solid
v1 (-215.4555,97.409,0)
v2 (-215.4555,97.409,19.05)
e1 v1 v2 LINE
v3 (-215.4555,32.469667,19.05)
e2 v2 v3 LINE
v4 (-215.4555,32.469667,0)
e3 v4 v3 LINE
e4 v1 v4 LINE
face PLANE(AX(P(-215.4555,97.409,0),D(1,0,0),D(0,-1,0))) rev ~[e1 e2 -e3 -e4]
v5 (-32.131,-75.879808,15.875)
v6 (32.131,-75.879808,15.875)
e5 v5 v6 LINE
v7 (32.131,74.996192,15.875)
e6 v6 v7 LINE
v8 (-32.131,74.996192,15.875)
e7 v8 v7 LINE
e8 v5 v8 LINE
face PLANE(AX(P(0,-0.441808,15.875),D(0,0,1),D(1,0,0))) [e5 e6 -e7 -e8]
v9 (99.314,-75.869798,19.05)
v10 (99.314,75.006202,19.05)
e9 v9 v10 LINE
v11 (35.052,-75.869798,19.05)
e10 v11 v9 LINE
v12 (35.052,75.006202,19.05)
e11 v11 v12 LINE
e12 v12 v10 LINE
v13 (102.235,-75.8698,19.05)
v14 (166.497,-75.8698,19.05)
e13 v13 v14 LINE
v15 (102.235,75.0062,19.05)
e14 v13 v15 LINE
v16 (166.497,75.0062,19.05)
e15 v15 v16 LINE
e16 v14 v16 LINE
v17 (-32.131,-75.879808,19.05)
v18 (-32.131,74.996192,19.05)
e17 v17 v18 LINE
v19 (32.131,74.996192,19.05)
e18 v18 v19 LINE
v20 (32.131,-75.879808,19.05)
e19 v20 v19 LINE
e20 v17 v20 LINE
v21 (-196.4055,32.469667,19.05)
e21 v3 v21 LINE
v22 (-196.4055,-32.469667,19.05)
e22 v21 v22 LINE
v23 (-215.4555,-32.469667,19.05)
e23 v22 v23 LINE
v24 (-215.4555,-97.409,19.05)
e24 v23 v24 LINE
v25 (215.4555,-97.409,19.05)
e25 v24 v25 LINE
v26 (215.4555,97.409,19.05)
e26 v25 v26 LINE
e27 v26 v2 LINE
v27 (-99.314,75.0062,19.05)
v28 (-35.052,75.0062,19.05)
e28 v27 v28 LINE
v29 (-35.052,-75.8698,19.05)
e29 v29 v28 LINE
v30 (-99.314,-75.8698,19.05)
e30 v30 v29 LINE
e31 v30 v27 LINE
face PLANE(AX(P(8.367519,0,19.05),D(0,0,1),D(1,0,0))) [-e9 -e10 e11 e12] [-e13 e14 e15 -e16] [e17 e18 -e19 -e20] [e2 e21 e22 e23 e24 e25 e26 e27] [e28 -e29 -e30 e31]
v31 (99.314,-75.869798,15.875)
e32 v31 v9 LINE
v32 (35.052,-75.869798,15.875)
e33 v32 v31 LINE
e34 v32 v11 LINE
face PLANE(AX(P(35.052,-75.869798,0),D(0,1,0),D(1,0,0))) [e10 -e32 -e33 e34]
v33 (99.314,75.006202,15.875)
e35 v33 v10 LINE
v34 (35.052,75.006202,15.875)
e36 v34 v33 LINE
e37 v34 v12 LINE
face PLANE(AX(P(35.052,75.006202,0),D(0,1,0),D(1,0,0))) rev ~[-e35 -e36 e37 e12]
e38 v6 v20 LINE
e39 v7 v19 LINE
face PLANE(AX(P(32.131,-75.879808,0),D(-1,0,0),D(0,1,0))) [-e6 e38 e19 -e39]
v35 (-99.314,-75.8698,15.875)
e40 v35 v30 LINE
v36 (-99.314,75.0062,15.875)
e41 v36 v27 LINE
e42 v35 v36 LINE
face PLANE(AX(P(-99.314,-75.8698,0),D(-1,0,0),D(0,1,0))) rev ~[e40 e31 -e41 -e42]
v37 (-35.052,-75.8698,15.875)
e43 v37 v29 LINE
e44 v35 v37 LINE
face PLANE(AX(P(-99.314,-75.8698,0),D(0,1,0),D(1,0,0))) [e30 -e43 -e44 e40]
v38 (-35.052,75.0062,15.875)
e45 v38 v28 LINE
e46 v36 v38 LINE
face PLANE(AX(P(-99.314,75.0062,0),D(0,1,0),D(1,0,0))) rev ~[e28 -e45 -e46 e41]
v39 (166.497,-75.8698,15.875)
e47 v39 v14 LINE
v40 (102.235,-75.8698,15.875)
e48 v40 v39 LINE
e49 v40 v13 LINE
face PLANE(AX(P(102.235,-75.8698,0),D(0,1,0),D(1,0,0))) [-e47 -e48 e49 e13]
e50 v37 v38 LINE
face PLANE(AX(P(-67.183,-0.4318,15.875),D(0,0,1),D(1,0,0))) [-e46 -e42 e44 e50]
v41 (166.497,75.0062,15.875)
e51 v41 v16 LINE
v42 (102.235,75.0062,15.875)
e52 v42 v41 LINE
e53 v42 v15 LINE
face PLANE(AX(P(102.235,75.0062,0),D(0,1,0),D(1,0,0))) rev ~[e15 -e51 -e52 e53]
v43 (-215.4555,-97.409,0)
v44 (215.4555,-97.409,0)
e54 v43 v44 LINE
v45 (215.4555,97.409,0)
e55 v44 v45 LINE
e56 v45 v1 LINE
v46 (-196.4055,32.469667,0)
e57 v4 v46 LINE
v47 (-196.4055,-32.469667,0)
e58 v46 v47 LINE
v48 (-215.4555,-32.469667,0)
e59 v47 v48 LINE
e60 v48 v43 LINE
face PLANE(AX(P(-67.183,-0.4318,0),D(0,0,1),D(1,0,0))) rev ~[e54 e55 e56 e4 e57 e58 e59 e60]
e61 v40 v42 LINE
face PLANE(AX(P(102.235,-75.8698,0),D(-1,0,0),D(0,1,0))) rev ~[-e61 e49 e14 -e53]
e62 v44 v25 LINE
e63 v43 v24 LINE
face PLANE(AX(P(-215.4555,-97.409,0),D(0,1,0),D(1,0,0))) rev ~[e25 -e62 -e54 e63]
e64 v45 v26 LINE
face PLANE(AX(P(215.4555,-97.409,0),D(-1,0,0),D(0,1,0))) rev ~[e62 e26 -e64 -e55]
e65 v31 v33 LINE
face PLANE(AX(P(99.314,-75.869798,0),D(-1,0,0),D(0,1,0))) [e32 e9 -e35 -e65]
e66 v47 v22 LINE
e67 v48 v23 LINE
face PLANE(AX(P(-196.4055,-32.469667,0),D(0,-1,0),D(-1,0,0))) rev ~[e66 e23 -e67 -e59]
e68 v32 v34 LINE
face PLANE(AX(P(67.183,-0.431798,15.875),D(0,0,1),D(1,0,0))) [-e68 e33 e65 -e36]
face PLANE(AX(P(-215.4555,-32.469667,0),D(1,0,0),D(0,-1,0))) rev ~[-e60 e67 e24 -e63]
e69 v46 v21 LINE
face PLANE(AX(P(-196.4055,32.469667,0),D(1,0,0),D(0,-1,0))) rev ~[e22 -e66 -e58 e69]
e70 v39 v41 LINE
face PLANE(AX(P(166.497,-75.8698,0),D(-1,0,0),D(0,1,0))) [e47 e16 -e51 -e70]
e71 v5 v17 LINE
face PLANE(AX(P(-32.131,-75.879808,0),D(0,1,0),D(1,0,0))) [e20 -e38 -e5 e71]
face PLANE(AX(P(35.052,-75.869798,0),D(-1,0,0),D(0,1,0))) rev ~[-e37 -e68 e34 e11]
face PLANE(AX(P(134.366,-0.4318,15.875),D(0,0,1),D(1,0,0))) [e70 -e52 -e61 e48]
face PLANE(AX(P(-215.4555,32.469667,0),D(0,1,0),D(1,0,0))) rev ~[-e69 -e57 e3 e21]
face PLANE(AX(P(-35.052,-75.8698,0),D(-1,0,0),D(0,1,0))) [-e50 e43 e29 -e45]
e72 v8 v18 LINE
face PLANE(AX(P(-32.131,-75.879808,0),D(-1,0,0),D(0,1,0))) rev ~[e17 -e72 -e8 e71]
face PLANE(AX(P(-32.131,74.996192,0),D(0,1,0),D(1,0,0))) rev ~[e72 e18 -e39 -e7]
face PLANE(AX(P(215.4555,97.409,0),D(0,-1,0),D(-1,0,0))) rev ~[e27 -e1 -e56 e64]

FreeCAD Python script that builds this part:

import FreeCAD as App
import Part
import Sketcher

V = App.Vector
Q = App.Units.Quantity

doc = App.newDocument("Part")
body = doc.addObject("PartDesign::Body", "Body")

sketch1 = doc.addObject("Sketcher::SketchObject", "Sketch")
body.addObject(sketch1)
sketch1.AttachmentSupport = (doc.XY_Plane, [""])
sketch1.MapMode = "FlatFace"
sketch1.addGeometry(Part.LineSegment(V(-215.4555, -97.409, 0), V(215.4555, -97.409, 0)), False)
sketch1.addGeometry(Part.LineSegment(V(215.4555, -97.409, 0), V(215.4555, 97.409, 0)), False)
sketch1.addGeometry(Part.LineSegment(V(215.4555, 97.409, 0), V(-215.4555, 97.409, 0)), False)
sketch1.addGeometry(Part.LineSegment(V(-215.4555, 97.409, 0), V(-215.4555, 32.469667, 0)), False)
sketch1.addGeometry(Part.LineSegment(V(-215.4555, 32.469667, 0), V(-196.4055, 32.469667, 0)), False)
sketch1.addGeometry(Part.LineSegment(V(-196.4055, 32.469667, 0), V(-196.4055, -32.469667, 0)), False)
sketch1.addGeometry(Part.LineSegment(V(-196.4055, -32.469667, 0), V(-215.4555, -32.469667, 0)), False)
sketch1.addGeometry(Part.LineSegment(V(-215.4555, -32.469667, 0), V(-215.4555, -97.409, 0)), False)
sketch1.addGeometry(Part.LineSegment(V(32.131, -75.879808, 0), V(-32.131, -75.879808, 0)), False)
sketch1.addGeometry(Part.LineSegment(V(-32.131, -75.879808, 0), V(-32.131, 74.996192, 0)), False)
sketch1.addGeometry(Part.LineSegment(V(-32.131, 74.996192, 0), V(32.131, 74.996192, 0)), False)
sketch1.addGeometry(Part.LineSegment(V(32.131, 74.996192, 0), V(32.131, -75.879808, 0)), False)
sketch1.addGeometry(Part.LineSegment(V(-35.052, -75.8698, 0), V(-99.314, -75.8698, 0)), False)
sketch1.addGeometry(Part.LineSegment(V(-99.314, -75.8698, 0), V(-99.314, 75.0062, 0)), False)
sketch1.addGeometry(Part.LineSegment(V(-99.314, 75.0062, 0), V(-35.052, 75.0062, 0)), False)
sketch1.addGeometry(Part.LineSegment(V(-35.052, 75.0062, 0), V(-35.052, -75.8698, 0)), False)
sketch1.addGeometry(Part.LineSegment(V(99.314, -75.869798, 0), V(35.052, -75.869798, 0)), False)
sketch1.addGeometry(Part.LineSegment(V(35.052, -75.869798, 0), V(35.052, 75.006202, 0)), False)
sketch1.addGeometry(Part.LineSegment(V(35.052, 75.006202, 0), V(99.314, 75.006202, 0)), False)
sketch1.addGeometry(Part.LineSegment(V(99.314, 75.006202, 0), V(99.314, -75.869798, 0)), False)
sketch1.addGeometry(Part.LineSegment(V(166.497, -75.8698, 0), V(102.235, -75.8698, 0)), False)
sketch1.addGeometry(Part.LineSegment(V(102.235, -75.8698, 0), V(102.235, 75.0062, 0)), False)
sketch1.addGeometry(Part.LineSegment(V(102.235, 75.0062, 0), V(166.497, 75.0062, 0)), False)
sketch1.addGeometry(Part.LineSegment(V(166.497, 75.0062, 0), V(166.497, -75.8698, 0)), False)
sketch1.addConstraint(Sketcher.Constraint("Coincident", 0, 2, 1, 1))
sketch1.addConstraint(Sketcher.Constraint("Coincident", 1, 2, 2, 1))
sketch1.addConstraint(Sketcher.Constraint("Coincident", 2, 2, 3, 1))
sketch1.addConstraint(Sketcher.Constraint("Coincident", 3, 2, 4, 1))
sketch1.addConstraint(Sketcher.Constraint("Coincident", 4, 2, 5, 1))
sketch1.addConstraint(Sketcher.Constraint("Coincident", 5, 2, 6, 1))
sketch1.addConstraint(Sketcher.Constraint("Coincident", 6, 2, 7, 1))
sketch1.addConstraint(Sketcher.Constraint("Coincident", 7, 2, 0, 1))
sketch1.addConstraint(Sketcher.Constraint("Coincident", 8, 2, 9, 1))
sketch1.addConstraint(Sketcher.Constraint("Coincident", 9, 2, 10, 1))
sketch1.addConstraint(Sketcher.Constraint("Coincident", 10, 2, 11, 1))
sketch1.addConstraint(Sketcher.Constraint("Coincident", 11, 2, 8, 1))
sketch1.addConstraint(Sketcher.Constraint("Coincident", 12, 2, 13, 1))
sketch1.addConstraint(Sketcher.Constraint("Coincident", 13, 2, 14, 1))
sketch1.addConstraint(Sketcher.Constraint("Coincident", 14, 2, 15, 1))
sketch1.addConstraint(Sketcher.Constraint("Coincident", 15, 2, 12, 1))
sketch1.addConstraint(Sketcher.Constraint("Coincident", 16, 2, 17, 1))
sketch1.addConstraint(Sketcher.Constraint("Coincident", 17, 2, 18, 1))
sketch1.addConstraint(Sketcher.Constraint("Coincident", 18, 2, 19, 1))
sketch1.addConstraint(Sketcher.Constraint("Coincident", 19, 2, 16, 1))
sketch1.addConstraint(Sketcher.Constraint("Coincident", 20, 2, 21, 1))
sketch1.addConstraint(Sketcher.Constraint("Coincident", 21, 2, 22, 1))
sketch1.addConstraint(Sketcher.Constraint("Coincident", 22, 2, 23, 1))
sketch1.addConstraint(Sketcher.Constraint("Coincident", 23, 2, 20, 1))
sketch1.addConstraint(Sketcher.Constraint("Horizontal", 0))
sketch1.addConstraint(Sketcher.Constraint("Vertical", 1))
sketch1.addConstraint(Sketcher.Constraint("Horizontal", 2))
sketch1.addConstraint(Sketcher.Constraint("Vertical", 3))
sketch1.addConstraint(Sketcher.Constraint("Horizontal", 4))
sketch1.addConstraint(Sketcher.Constraint("Vertical", 5))
sketch1.addConstraint(Sketcher.Constraint("Horizontal", 6))
sketch1.addConstraint(Sketcher.Constraint("Vertical", 7))
sketch1.addConstraint(Sketcher.Constraint("Horizontal", 8))
sketch1.addConstraint(Sketcher.Constraint("Vertical", 9))
sketch1.addConstraint(Sketcher.Constraint("Horizontal", 10))
sketch1.addConstraint(Sketcher.Constraint("Vertical", 11))
sketch1.addConstraint(Sketcher.Constraint("Horizontal", 12))
sketch1.addConstraint(Sketcher.Constraint("Vertical", 13))
sketch1.addConstraint(Sketcher.Constraint("Horizontal", 14))
sketch1.addConstraint(Sketcher.Constraint("Vertical", 15))
sketch1.addConstraint(Sketcher.Constraint("Horizontal", 16))
sketch1.addConstraint(Sketcher.Constraint("Vertical", 17))
sketch1.addConstraint(Sketcher.Constraint("Horizontal", 18))
sketch1.addConstraint(Sketcher.Constraint("Vertical", 19))
sketch1.addConstraint(Sketcher.Constraint("Horizontal", 20))
sketch1.addConstraint(Sketcher.Constraint("Vertical", 21))
sketch1.addConstraint(Sketcher.Constraint("Horizontal", 22))
sketch1.addConstraint(Sketcher.Constraint("Vertical", 23))
sketch1.addConstraint(Sketcher.Constraint("Symmetric", 0, 2, 2, 2, -1, 1))
sketch1.addConstraint(Sketcher.Constraint("Symmetric", 15, 2, 16, 2, -2))
sketch1.addConstraint(Sketcher.Constraint("Symmetric", 13, 2, 18, 2, -2))
sketch1.addConstraint(Sketcher.Constraint("Symmetric", 3, 2, 6, 2, -1))
sketch1.addConstraint(Sketcher.Constraint("Horizontal", 19, 2, 20, 2))
sketch1.addConstraint(Sketcher.Constraint("Horizontal", 18, 2, 21, 2))
sketch1.addConstraint(Sketcher.Constraint("Equal", 10, 12))
sketch1.addConstraint(Sketcher.Constraint("Equal", 18, 20))
sketch1.addConstraint(Sketcher.Constraint("Equal", 3, 5))
sketch1.addConstraint(Sketcher.Constraint("Equal", 11, 13))
sketch1.addConstraint(Sketcher.Constraint("DistanceX", 4, 1, 4, 2, Q("0.75 in")))
sketch1.addConstraint(Sketcher.Constraint("DistanceX", 8, 2, 8, 1, Q("2.53 in")))
sketch1.addConstraint(Sketcher.Constraint("DistanceY", 1, 1, 1, 2, Q("7.67 in")))
sketch1.addConstraint(Sketcher.Constraint("DistanceY", 9, 1, 9, 2, Q("5.94 in")))
sketch1.addConstraint(Sketcher.Constraint("DistanceX", 0, 1, 0, 2, Q("16.965 in")))
sketch1.addConstraint(Sketcher.Constraint("DistanceX", 12, 2, -1, 1, Q("3.91 in")))
sketch1.addConstraint(Sketcher.Constraint("DistanceX", 11, 2, 20, 2, Q("2.76 in")))
sketch1.addConstraint(Sketcher.Constraint("DistanceX", 8, 2, -1, 1, Q("1.265 in")))
sketch1.addConstraint(Sketcher.Constraint("DistanceY", 12, 2, -1, 1, Q("2.987 in")))
sketch1.addConstraint(Sketcher.Constraint("DistanceY", -1, 1, 9, 2, 74.996192))
pad1 = doc.addObject("PartDesign::Pad", "Pad")
body.addObject(pad1)
pad1.Profile = sketch1
pad1.Length = Q("0.75 in")

sketch2 = doc.addObject("Sketcher::SketchObject", "Sketch001")
body.addObject(sketch2)
sketch2.AttachmentSupport = (doc.XY_Plane, [""])
sketch2.MapMode = "FlatFace"
sketch2.addGeometry(Part.LineSegment(V(-99.314, 75.0062, 0), V(-99.314, -75.8698, 0)), False)
sketch2.addGeometry(Part.LineSegment(V(-99.314, -75.8698, 0), V(-35.052, -75.8698, 0)), False)
sketch2.addGeometry(Part.LineSegment(V(-35.052, -75.8698, 0), V(-35.052, 75.0062, 0)), False)
sketch2.addGeometry(Part.LineSegment(V(-35.052, 75.0062, 0), V(-99.314, 75.0062, 0)), False)
sketch2.addGeometry(Part.LineSegment(V(-32.131, 74.996192, 0), V(-32.131, -75.879808, 0)), False)
sketch2.addGeometry(Part.LineSegment(V(-32.131, -75.879808, 0), V(32.131, -75.879808, 0)), False)
sketch2.addGeometry(Part.LineSegment(V(32.131, -75.879808, 0), V(32.131, 74.996192, 0)), False)
sketch2.addGeometry(Part.LineSegment(V(32.131, 74.996192, 0), V(-32.131, 74.996192, 0)), False)
sketch2.addGeometry(Part.LineSegment(V(35.052, 75.006202, 0), V(35.052, -75.869798, 0)), False)
sketch2.addGeometry(Part.LineSegment(V(35.052, -75.869798, 0), V(99.314, -75.869798, 0)), False)
sketch2.addGeometry(Part.LineSegment(V(99.314, -75.869798, 0), V(99.314, 75.006202, 0)), False)
sketch2.addGeometry(Part.LineSegment(V(99.314, 75.006202, 0), V(35.052, 75.006202, 0)), False)
sketch2.addGeometry(Part.LineSegment(V(102.235, 75.0062, 0), V(102.235, -75.8698, 0)), False)
sketch2.addGeometry(Part.LineSegment(V(102.235, -75.8698, 0), V(166.497, -75.8698, 0)), False)
sketch2.addGeometry(Part.LineSegment(V(166.497, -75.8698, 0), V(166.497, 75.0062, 0)), False)
sketch2.addGeometry(Part.LineSegment(V(166.497, 75.0062, 0), V(102.235, 75.0062, 0)), False)
sketch2.addConstraint(Sketcher.Constraint("Coincident", 0, 2, 1, 1))
sketch2.addConstraint(Sketcher.Constraint("Coincident", 1, 2, 2, 1))
sketch2.addConstraint(Sketcher.Constraint("Coincident", 2, 2, 3, 1))
sketch2.addConstraint(Sketcher.Constraint("Coincident", 3, 2, 0, 1))
sketch2.addConstraint(Sketcher.Constraint("Coincident", 4, 2, 5, 1))
sketch2.addConstraint(Sketcher.Constraint("Coincident", 5, 2, 6, 1))
sketch2.addConstraint(Sketcher.Constraint("Coincident", 6, 2, 7, 1))
sketch2.addConstraint(Sketcher.Constraint("Coincident", 7, 2, 4, 1))
sketch2.addConstraint(Sketcher.Constraint("Coincident", 8, 2, 9, 1))
sketch2.addConstraint(Sketcher.Constraint("Coincident", 9, 2, 10, 1))
sketch2.addConstraint(Sketcher.Constraint("Coincident", 10, 2, 11, 1))
sketch2.addConstraint(Sketcher.Constraint("Coincident", 11, 2, 8, 1))
sketch2.addConstraint(Sketcher.Constraint("Coincident", 12, 2, 13, 1))
sketch2.addConstraint(Sketcher.Constraint("Coincident", 13, 2, 14, 1))
sketch2.addConstraint(Sketcher.Constraint("Coincident", 14, 2, 15, 1))
sketch2.addConstraint(Sketcher.Constraint("Coincident", 15, 2, 12, 1))
sketch2.addConstraint(Sketcher.Constraint("Vertical", 0))
sketch2.addConstraint(Sketcher.Constraint("Horizontal", 1))
sketch2.addConstraint(Sketcher.Constraint("Vertical", 2))
sketch2.addConstraint(Sketcher.Constraint("Horizontal", 3))
sketch2.addConstraint(Sketcher.Constraint("Vertical", 4))
sketch2.addConstraint(Sketcher.Constraint("Horizontal", 5))
sketch2.addConstraint(Sketcher.Constraint("Vertical", 6))
sketch2.addConstraint(Sketcher.Constraint("Horizontal", 7))
sketch2.addConstraint(Sketcher.Constraint("Vertical", 8))
sketch2.addConstraint(Sketcher.Constraint("Horizontal", 9))
sketch2.addConstraint(Sketcher.Constraint("Vertical", 10))
sketch2.addConstraint(Sketcher.Constraint("Horizontal", 11))
sketch2.addConstraint(Sketcher.Constraint("Vertical", 12))
sketch2.addConstraint(Sketcher.Constraint("Horizontal", 13))
sketch2.addConstraint(Sketcher.Constraint("Vertical", 14))
sketch2.addConstraint(Sketcher.Constraint("Horizontal", 15))
sketch2.addConstraint(Sketcher.Constraint("Symmetric", 1, 2, 8, 2, -2))
sketch2.addConstraint(Sketcher.Constraint("Symmetric", 3, 2, 10, 2, -2))
sketch2.addConstraint(Sketcher.Constraint("Horizontal", 9, 2, 12, 2))
sketch2.addConstraint(Sketcher.Constraint("Horizontal", 11, 2, 14, 2))
sketch2.addConstraint(Sketcher.Constraint("Equal", 3, 5))
sketch2.addConstraint(Sketcher.Constraint("Equal", 11, 13))
sketch2.addConstraint(Sketcher.Constraint("Equal", 2, 4))
sketch2.addConstraint(Sketcher.Constraint("DistanceX", 1, 1, 1, 2, Q("2.53 in")))
sketch2.addConstraint(Sketcher.Constraint("DistanceY", 0, 2, 0, 1, Q("5.94 in")))
sketch2.addConstraint(Sketcher.Constraint("DistanceX", 0, 2, -1, 1, Q("3.91 in")))
sketch2.addConstraint(Sketcher.Constraint("DistanceX", 5, 2, 12, 2, Q("2.76 in")))
sketch2.addConstraint(Sketcher.Constraint("DistanceY", 0, 2, -1, 1, Q("2.987 in")))
sketch2.addConstraint(Sketcher.Constraint("DistanceX", 4, 2, -1, 1, Q("1.265 in")))
sketch2.addConstraint(Sketcher.Constraint("DistanceY", -1, 1, 6, 2, 74.996192))
pad2 = doc.addObject("PartDesign::Pad", "Pad001")
body.addObject(pad2)
pad2.Profile = sketch2
pad2.Length = Q("0.625 in")

doc.recompute()
